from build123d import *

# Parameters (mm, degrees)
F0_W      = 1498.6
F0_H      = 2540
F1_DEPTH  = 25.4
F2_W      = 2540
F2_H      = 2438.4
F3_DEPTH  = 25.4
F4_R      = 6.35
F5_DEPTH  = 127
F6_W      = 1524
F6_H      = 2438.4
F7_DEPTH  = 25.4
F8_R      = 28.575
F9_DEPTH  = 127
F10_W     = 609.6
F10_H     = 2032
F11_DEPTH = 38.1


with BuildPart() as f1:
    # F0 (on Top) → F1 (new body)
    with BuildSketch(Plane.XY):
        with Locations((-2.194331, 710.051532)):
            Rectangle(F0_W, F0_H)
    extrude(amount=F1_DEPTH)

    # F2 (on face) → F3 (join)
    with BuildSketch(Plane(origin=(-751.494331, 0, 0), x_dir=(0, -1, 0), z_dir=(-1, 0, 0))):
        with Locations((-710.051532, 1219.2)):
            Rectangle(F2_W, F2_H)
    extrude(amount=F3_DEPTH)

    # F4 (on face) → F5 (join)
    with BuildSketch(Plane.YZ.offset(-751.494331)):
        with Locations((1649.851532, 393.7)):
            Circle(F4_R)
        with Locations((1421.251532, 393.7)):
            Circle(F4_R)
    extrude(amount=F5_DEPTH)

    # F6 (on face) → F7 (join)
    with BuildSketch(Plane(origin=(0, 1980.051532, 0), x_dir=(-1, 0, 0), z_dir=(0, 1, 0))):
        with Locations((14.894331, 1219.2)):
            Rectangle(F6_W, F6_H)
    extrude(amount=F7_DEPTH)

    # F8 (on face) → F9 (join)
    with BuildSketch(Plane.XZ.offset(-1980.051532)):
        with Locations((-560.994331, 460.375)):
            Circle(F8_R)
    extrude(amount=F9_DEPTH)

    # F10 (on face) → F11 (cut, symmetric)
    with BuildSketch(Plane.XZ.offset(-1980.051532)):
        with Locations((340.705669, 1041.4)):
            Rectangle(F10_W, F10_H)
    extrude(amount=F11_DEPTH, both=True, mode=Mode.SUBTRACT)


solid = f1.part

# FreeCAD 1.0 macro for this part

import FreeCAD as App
import Part
import Sketcher

V = App.Vector
Q = App.Units.Quantity


def add_polygon(sketch, points):
    """Adds a closed chain of lines whose ends are joined by coincident constraints."""
    first, n = sketch.GeometryCount, len(points)
    for a, b in zip(points, points[1:] + points[:1]):
        sketch.addGeometry(Part.LineSegment(App.Vector(*a, 0), App.Vector(*b, 0)), False)
    for i in range(n):
        sketch.addConstraint(Sketcher.Constraint("Coincident", first + i, 2, first + (i + 1) % n, 1))

doc = App.newDocument("Part")
params = doc.addObject("Spreadsheet::Sheet", "Params")
for row, (alias, value) in enumerate([
    ("sketch1_width", "59 in"),
    ("sketch1_height", "100 in"),
    ("pad1_length", "1 in"),
    ("sketch2_width", "100 in"),
    ("sketch2_height", "96 in"),
    ("pad2_length", "1 in"),
    ("sketch3_diameter", "0.5 in"),
    ("pad3_length", "5 in"),
    ("sketch4_width", "60 in"),
    ("sketch4_height", "96 in"),
    ("pad4_length", "1 in"),
    ("sketch5_diameter", "2.25 in"),
    ("pad5_length", "5 in"),
    ("sketch6_width", "24 in"),
    ("sketch6_height", "80 in"),
    ("pocket1_length", "3 in"),
], start=1):
    params.set(f"A{row}", alias)
    params.set(f"B{row}", "=" + value)
    params.setAlias(f"B{row}", alias)

body = doc.addObject("PartDesign::Body", "Body")

# Sketch on XY plane
sketch1 = body.newObject("Sketcher::SketchObject", "Sketch")
sketch1.AttachmentSupport = (doc.getObject("XY_Plane"), [""])
sketch1.MapMode = "FlatFace"
add_polygon(sketch1, [(-751, 1980), (-751, -560), (747, -560), (747, 1980)])  # lines 0-3
sketch1.addConstraint([
    Sketcher.Constraint("Vertical", 0),
    Sketcher.Constraint("Horizontal", 1),
    Sketcher.Constraint("Vertical", 2),
    Sketcher.Constraint("Horizontal", 3),
    Sketcher.Constraint("DistanceX", 1, 1, 1, 2, Q("59 in")),
    Sketcher.Constraint("DistanceY", 0, 2, 0, 1, Q("100 in")),
    Sketcher.Constraint("DistanceX", 0, 2, -1, 1, 751.494331),
    Sketcher.Constraint("DistanceY", 0, 2, -1, 1, 559.948468),
])
sketch1.setExpression("Constraints[8]", "Params.sketch1_width")
sketch1.setExpression("Constraints[9]", "Params.sketch1_height")
pad1 = body.newObject("PartDesign::Pad", "Pad")
pad1.Profile = sketch1
pad1.setExpression("Length", "Params.pad1_length")

# Sketch on YZ plane
sketch2 = body.newObject("Sketcher::SketchObject", "Sketch001")
sketch2.AttachmentSupport = (doc.getObject("YZ_Plane"), [""])
sketch2.MapMode = "FlatFace"
sketch2.AttachmentOffset = App.Placement(V(0, 0, -751.494331), App.Rotation())
add_polygon(sketch2, [(1980, 2438), (1980, 0), (-560, 0), (-560, 2438)])  # lines 0-3
sketch2.addConstraint([
    Sketcher.Constraint("Vertical", 0),
    Sketcher.Constraint("Horizontal", 1),
    Sketcher.Constraint("Vertical", 2),
    Sketcher.Constraint("Horizontal", 3),
    Sketcher.Constraint("PointOnObject", 0, 2, -1),
    Sketcher.Constraint("DistanceX", 1, 2, 1, 1, Q("100 in")),
    Sketcher.Constraint("DistanceY", 0, 2, 0, 1, Q("96 in")),
    Sketcher.Constraint("DistanceX", -1, 1, 0, 2, 1980.051532),
])
sketch2.setExpression("Constraints[9]", "Params.sketch2_width")
sketch2.setExpression("Constraints[10]", "Params.sketch2_height")
pad2 = body.newObject("PartDesign::Pad", "Pad001")
pad2.Profile = sketch2
pad2.setExpression("Length", "Params.pad2_length")
pad2.Reversed = True

# Sketch on YZ plane
sketch3 = body.newObject("Sketcher::SketchObject", "Sketch002")
sketch3.AttachmentSupport = (doc.getObject("YZ_Plane"), [""])
sketch3.MapMode = "FlatFace"
sketch3.AttachmentOffset = App.Placement(V(0, 0, -751.494331), App.Rotation())
sketch3.addGeometry([
    Part.Circle(V(1650, 394, 0), V(0, 0, 1), 6),
    Part.Circle(V(1421, 394, 0), V(0, 0, 1), 6),
], False)
sketch3.addConstraint([
    Sketcher.Constraint("Equal", 0, 1),
    Sketcher.Constraint("Horizontal", 0, 3, 1, 3),
    Sketcher.Constraint("Diameter", 0, Q("0.5 in")),
    Sketcher.Constraint("DistanceX", 1, 3, 0, 3, Q("9 in")),
    Sketcher.Constraint("DistanceY", -1, 1, 0, 3, Q("15.5 in")),
    Sketcher.Constraint("DistanceX", -1, 1, 0, 3, 1649.851532),
])
sketch3.setExpression("Constraints[2]", "Params.sketch3_diameter")
pad3 = body.newObject("PartDesign::Pad", "Pad002")
pad3.Profile = sketch3
pad3.setExpression("Length", "Params.pad3_length")

# Sketch on XZ plane
sketch4 = body.newObject("Sketcher::SketchObject", "Sketch003")
sketch4.AttachmentSupport = (doc.getObject("XZ_Plane"), [""])
sketch4.MapMode = "FlatFace"
sketch4.AttachmentOffset = App.Placement(V(0, 0, -1980.051532), App.Rotation())
add_polygon(sketch4, [(747, 2438), (747, 0), (-777, 0), (-777, 2438)])  # lines 0-3
sketch4.addConstraint([
    Sketcher.Constraint("Vertical", 0),
    Sketcher.Constraint("Horizontal", 1),
    Sketcher.Constraint("Vertical", 2),
    Sketcher.Constraint("Horizontal", 3),
    Sketcher.Constraint("PointOnObject", 0, 2, -1),
    Sketcher.Constraint("DistanceX", 1, 2, 1, 1, Q("60 in")),
    Sketcher.Constraint("DistanceY", 0, 2, 0, 1, Q("96 in")),
    Sketcher.Constraint("DistanceX", -1, 1, 0, 2, 747.105669),
])
sketch4.setExpression("Constraints[9]", "Params.sketch4_width")
sketch4.setExpression("Constraints[10]", "Params.sketch4_height")
pad4 = body.newObject("PartDesign::Pad", "Pad003")
pad4.Profile = sketch4
pad4.setExpression("Length", "Params.pad4_length")
pad4.Reversed = True

# Sketch on XZ plane
sketch5 = body.newObject("Sketcher::SketchObject", "Sketch004")
sketch5.AttachmentSupport = (doc.getObject("XZ_Plane"), [""])
sketch5.MapMode = "FlatFace"
sketch5.AttachmentOffset = App.Placement(V(0, 0, -1980.051532), App.Rotation())
sketch5.addGeometry(Part.Circle(V(-561, 460, 0), V(0, 0, 1), 29), False)
sketch5.addConstraint([
    Sketcher.Constraint("Diameter", 0, Q("2.25 in")),
    Sketcher.Constraint("DistanceY", -1, 1, 0, 3, Q("18.125 in")),
    Sketcher.Constraint("DistanceX", 0, 3, -1, 1, 560.994331),
])
sketch5.setExpression("Constraints[0]", "Params.sketch5_diameter")
pad5 = body.newObject("PartDesign::Pad", "Pad004")
pad5.Profile = sketch5
pad5.setExpression("Length", "Params.pad5_length")

# Sketch on XZ plane
sketch6 = body.newObject("Sketcher::SketchObject", "Sketch005")
sketch6.AttachmentSupport = (doc.getObject("XZ_Plane"), [""])
sketch6.MapMode = "FlatFace"
sketch6.AttachmentOffset = App.Placement(V(0, 0, -1980.051532), App.Rotation())
add_polygon(sketch6, [(36, 2057), (36, 25), (646, 25), (646, 2057)])  # lines 0-3
sketch6.addConstraint([
    Sketcher.Constraint("Vertical", 0),
    Sketcher.Constraint("Horizontal", 1),
    Sketcher.Constraint("Vertical", 2),
    Sketcher.Constraint("Horizontal", 3),
    Sketcher.Constraint("DistanceX", 1, 1, 1, 2, Q("24 in")),
    Sketcher.Constraint("DistanceY", 0, 2, 0, 1, Q("80 in")),
    Sketcher.Constraint("DistanceY", -1, 1, 0, 2, Q("1 in")),
    Sketcher.Constraint("DistanceX", -1, 1, 0, 2, 35.905669),
])
sketch6.setExpression("Constraints[8]", "Params.sketch6_width")
sketch6.setExpression("Constraints[9]", "Params.sketch6_height")
pocket1 = body.newObject("PartDesign::Pocket", "Pocket")
pocket1.Profile = sketch6
pocket1.setExpression("Length", "Params.pocket1_length")
pocket1.Midplane = True

doc.recompute()
